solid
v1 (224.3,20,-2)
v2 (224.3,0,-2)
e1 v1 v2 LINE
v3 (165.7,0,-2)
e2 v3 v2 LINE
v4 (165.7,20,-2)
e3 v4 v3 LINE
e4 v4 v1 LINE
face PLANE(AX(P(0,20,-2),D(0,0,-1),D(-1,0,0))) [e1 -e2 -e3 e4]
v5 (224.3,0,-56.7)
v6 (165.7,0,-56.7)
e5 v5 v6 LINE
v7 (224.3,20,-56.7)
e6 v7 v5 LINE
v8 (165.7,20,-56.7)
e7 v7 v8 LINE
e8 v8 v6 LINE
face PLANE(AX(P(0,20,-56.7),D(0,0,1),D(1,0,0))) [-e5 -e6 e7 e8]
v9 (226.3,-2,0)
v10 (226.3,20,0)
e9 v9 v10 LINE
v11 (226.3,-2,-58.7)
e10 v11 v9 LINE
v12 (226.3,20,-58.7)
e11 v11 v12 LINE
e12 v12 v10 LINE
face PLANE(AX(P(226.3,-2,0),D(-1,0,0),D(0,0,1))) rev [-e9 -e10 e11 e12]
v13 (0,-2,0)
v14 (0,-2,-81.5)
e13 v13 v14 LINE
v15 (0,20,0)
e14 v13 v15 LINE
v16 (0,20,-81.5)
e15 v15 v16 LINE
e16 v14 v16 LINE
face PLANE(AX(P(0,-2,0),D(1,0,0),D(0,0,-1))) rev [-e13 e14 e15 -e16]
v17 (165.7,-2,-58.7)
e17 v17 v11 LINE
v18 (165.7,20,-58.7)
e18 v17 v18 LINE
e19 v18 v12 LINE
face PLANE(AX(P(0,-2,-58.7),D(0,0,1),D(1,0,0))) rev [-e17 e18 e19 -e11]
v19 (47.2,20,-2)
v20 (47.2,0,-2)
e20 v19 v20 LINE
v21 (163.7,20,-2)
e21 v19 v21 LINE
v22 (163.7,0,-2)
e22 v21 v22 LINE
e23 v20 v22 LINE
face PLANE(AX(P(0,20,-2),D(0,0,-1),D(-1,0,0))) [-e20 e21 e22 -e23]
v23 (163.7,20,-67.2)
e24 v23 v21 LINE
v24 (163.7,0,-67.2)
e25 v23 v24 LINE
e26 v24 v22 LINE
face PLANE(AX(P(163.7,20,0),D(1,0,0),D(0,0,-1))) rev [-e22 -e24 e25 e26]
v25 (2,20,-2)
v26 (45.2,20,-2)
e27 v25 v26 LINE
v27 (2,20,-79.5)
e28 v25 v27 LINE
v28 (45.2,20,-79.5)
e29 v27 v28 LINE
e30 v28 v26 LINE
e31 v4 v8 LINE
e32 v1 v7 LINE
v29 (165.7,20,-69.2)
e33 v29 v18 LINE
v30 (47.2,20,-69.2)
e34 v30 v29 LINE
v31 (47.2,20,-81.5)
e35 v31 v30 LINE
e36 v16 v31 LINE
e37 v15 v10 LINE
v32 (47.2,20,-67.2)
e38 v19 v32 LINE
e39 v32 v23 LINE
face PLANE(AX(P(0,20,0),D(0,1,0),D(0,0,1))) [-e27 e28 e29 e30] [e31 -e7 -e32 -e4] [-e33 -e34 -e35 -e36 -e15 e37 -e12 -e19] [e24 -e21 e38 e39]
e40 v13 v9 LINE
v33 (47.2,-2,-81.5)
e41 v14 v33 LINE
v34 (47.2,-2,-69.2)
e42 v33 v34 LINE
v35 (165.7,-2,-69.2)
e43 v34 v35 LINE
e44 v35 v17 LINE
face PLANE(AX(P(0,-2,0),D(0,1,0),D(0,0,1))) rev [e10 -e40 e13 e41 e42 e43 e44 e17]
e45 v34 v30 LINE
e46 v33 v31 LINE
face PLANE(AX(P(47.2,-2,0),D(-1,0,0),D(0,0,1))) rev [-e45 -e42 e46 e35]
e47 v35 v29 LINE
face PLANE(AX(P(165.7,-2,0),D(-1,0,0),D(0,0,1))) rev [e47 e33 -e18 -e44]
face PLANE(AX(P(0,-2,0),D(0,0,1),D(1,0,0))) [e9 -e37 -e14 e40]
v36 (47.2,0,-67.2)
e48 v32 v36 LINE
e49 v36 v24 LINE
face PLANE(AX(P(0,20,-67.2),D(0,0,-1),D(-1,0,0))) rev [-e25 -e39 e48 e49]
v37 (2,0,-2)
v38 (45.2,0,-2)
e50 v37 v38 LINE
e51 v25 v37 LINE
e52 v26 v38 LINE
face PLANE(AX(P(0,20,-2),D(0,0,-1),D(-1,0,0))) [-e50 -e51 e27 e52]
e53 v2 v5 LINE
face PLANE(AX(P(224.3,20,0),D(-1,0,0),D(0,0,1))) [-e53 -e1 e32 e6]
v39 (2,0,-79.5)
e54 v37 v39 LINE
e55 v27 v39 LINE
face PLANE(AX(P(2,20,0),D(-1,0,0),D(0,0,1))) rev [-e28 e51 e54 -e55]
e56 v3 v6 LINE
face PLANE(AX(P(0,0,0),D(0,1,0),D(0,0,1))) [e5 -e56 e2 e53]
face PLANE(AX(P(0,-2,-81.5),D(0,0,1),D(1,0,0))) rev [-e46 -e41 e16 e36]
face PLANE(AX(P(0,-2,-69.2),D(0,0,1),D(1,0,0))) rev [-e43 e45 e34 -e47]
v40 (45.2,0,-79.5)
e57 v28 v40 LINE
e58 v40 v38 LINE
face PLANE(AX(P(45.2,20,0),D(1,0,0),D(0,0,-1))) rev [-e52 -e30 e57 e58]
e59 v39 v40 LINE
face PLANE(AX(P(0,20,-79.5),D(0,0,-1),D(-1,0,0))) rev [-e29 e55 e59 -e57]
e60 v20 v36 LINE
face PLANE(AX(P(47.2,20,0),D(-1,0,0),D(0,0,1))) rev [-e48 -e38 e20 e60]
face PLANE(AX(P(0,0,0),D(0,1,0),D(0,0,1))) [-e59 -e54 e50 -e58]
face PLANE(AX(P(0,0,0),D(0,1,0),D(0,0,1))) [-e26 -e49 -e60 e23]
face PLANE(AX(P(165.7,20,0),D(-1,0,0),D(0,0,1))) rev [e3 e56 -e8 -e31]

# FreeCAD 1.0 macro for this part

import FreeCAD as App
import Part
import Sketcher

V = App.Vector

doc = App.newDocument("Part")
params = doc.addObject("Spreadsheet::Sheet", "Params")
for row, (alias, value) in enumerate([
    ("sketch1_width", "226.3 mm"),
    ("sketch1_width2", "60.6 mm"),
    ("sketch1_width3", "118.5 mm"),
    ("sketch1_height", "58.7 mm"),
    ("sketch1_height2", "10.5 mm"),
    ("pad1_length", "2 mm"),
    ("sketch2_width", "226.3 mm"),
    ("sketch2_width2", "60.6 mm"),
    ("sketch2_width3", "118.5 mm"),
    ("sketch2_width4", "116.5 mm"),
    ("sketch2_width5", "58.6 mm"),
    ("pad2_length", "20 mm"),
], start=1):
    params.set(f"A{row}", alias)
    params.set(f"B{row}", "=" + value)
    params.setAlias(f"B{row}", alias)

body = doc.addObject("PartDesign::Body", "Body")

sketch1 = body.newObject("Sketcher::SketchObject", "Sketch")
sketch1.AttachmentSupport = (doc.getObject("XZ_Plane"), [""])
sketch1.MapMode = "FlatFace"
sketch1.addGeometry([
    Part.LineSegment(V(0, 0, 0), V(226.3, 0, 0)),
    Part.LineSegment(V(226.3, 0, 0), V(226.3, -58.7, 0)),
    Part.LineSegment(V(226.3, -58.7, 0), V(165.7, -58.7, 0)),
    Part.LineSegment(V(165.7, -58.7, 0), V(165.7, -69.2, 0)),
    Part.LineSegment(V(165.7, -69.2, 0), V(47.2, -69.2, 0)),
    Part.LineSegment(V(47.2, -69.2, 0), V(47.2, -81.5, 0)),
    Part.LineSegment(V(47.2, -81.5, 0), V(0, -81.5, 0)),
    Part.LineSegment(V(0, -81.5, 0), V(0, 0, 0)),
], False)
sketch1.addConstraint([
    Sketcher.Constraint("Coincident", 0, 2, 1, 1),
    Sketcher.Constraint("Coincident", 1, 2, 2, 1),
    Sketcher.Constraint("Coincident", 2, 2, 3, 1),
    Sketcher.Constraint("Coincident", 3, 2, 4, 1),
    Sketcher.Constraint("Coincident", 4, 2, 5, 1),
    Sketcher.Constraint("Coincident", 5, 2, 6, 1),
    Sketcher.Constraint("Coincident", 6, 2, 7, 1),
    Sketcher.Constraint("Coincident", 7, 2, 0, 1),
    Sketcher.Constraint("Horizontal", 0),
    Sketcher.Constraint("Vertical", 1),
    Sketcher.Constraint("Horizontal", 2),
    Sketcher.Constraint("Vertical", 3),
    Sketcher.Constraint("Horizontal", 4),
    Sketcher.Constraint("Vertical", 5),
    Sketcher.Constraint("Horizontal", 6),
    Sketcher.Constraint("Vertical", 7),
    Sketcher.Constraint("Coincident", 7, 2, -1, 1),
    Sketcher.Constraint("DistanceX", 0, 1, 0, 2, 226.3),
    Sketcher.Constraint("DistanceX", 2, 2, 2, 1, 60.6),
    Sketcher.Constraint("DistanceX", 4, 2, 4, 1, 118.5),
    Sketcher.Constraint("DistanceY", 1, 2, 1, 1, 58.7),
    Sketcher.Constraint("DistanceY", 3, 2, 3, 1, 10.5),
    Sketcher.Constraint("DistanceY", 5, 2, 5, 1, 12.3),
])
sketch1.setExpression("Constraints[17]", "Params.sketch1_width")
sketch1.setExpression("Constraints[18]", "Params.sketch1_width2")
sketch1.setExpression("Constraints[19]", "Params.sketch1_width3")
sketch1.setExpression("Constraints[20]", "Params.sketch1_height")
sketch1.setExpression("Constraints[21]", "Params.sketch1_height2")
pad1 = body.newObject("PartDesign::Pad", "Pad")
pad1.Profile = sketch1
pad1.setExpression("Length", "Params.pad1_length")

sketch2 = body.newObject("Sketcher::SketchObject", "Sketch001")
sketch2.AttachmentSupport = (doc.getObject("XZ_Plane"), [""])
sketch2.MapMode = "FlatFace"
sketch2.addGeometry([
    Part.LineSegment(V(0, 0, 0), V(226.3, 0, 0)),
    Part.LineSegment(V(226.3, 0, 0), V(226.3, -58.7, 0)),
    Part.LineSegment(V(226.3, -58.7, 0), V(165.7, -58.7, 0)),
    Part.LineSegment(V(165.7, -58.7, 0), V(165.7, -69.2, 0)),
    Part.LineSegment(V(165.7, -69.2, 0), V(47.2, -69.2, 0)),
    Part.LineSegment(V(47.2, -69.2, 0), V(47.2, -81.5, 0)),
    Part.LineSegment(V(47.2, -81.5, 0), V(0, -81.5, 0)),
    Part.LineSegment(V(0, -81.5, 0), V(0, 0, 0)),
    Part.LineSegment(V(163.7, -67.2, 0), V(163.7, -2, 0)),
    Part.LineSegment(V(163.7, -2, 0), V(47.2, -2, 0)),
    Part.LineSegment(V(47.2, -2, 0), V(47.2, -67.2, 0)),
    Part.LineSegment(V(47.2, -67.2, 0), V(163.7, -67.2, 0)),
    Part.LineSegment(V(224.3, -2, 0), V(165.7, -2, 0)),
    Part.LineSegment(V(165.7, -2, 0), V(165.7, -56.7, 0)),
    Part.LineSegment(V(165.7, -56.7, 0), V(224.3, -56.7, 0)),
    Part.LineSegment(V(224.3, -56.7, 0), V(224.3, -2, 0)),
    Part.LineSegment(V(45.2, -2, 0), V(2, -2, 0)),
    Part.LineSegment(V(2, -2, 0), V(2, -79.5, 0)),
    Part.LineSegment(V(2, -79.5, 0), V(45.2, -79.5, 0)),
    Part.LineSegment(V(45.2, -79.5, 0), V(45.2, -2, 0)),
], False)
sketch2.addConstraint([
    Sketcher.Constraint("Coincident", 0, 2, 1, 1),
    Sketcher.Constraint("Coincident", 1, 2, 2, 1),
    Sketcher.Constraint("Coincident", 2, 2, 3, 1),
    Sketcher.Constraint("Coincident", 3, 2, 4, 1),
    Sketcher.Constraint("Coincident", 4, 2, 5, 1),
    Sketcher.Constraint("Coincident", 5, 2, 6, 1),
    Sketcher.Constraint("Coincident", 6, 2, 7, 1),
    Sketcher.Constraint("Coincident", 7, 2, 0, 1),
    Sketcher.Constraint("Coincident", 8, 2, 9, 1),
    Sketcher.Constraint("Coincident", 9, 2, 10, 1),
    Sketcher.Constraint("Coincident", 10, 2, 11, 1),
    Sketcher.Constraint("Coincident", 11, 2, 8, 1),
    Sketcher.Constraint("Coincident", 12, 2, 13, 1),
    Sketcher.Constraint("Coincident", 13, 2, 14, 1),
    Sketcher.Constraint("Coincident", 14, 2, 15, 1),
    Sketcher.Constraint("Coincident", 15, 2, 12, 1),
    Sketcher.Constraint("Coincident", 16, 2, 17, 1),
    Sketcher.Constraint("Coincident", 17, 2, 18, 1),
    Sketcher.Constraint("Coincident", 18, 2, 19, 1),
    Sketcher.Constraint("Coincident", 19, 2, 16, 1),
    Sketcher.Constraint("Horizontal", 0),
    Sketcher.Constraint("Vertical", 1),
    Sketcher.Constraint("Horizontal", 2),
    Sketcher.Constraint("Vertical", 3),
    Sketcher.Constraint("Horizontal", 4),
    Sketcher.Constraint("Vertical", 5),
    Sketcher.Constraint("Horizontal", 6),
    Sketcher.Constraint("Vertical", 7),
    Sketcher.Constraint("Vertical", 8),
    Sketcher.Constraint("Horizontal", 9),
    Sketcher.Constraint("Vertical", 10),
    Sketcher.Constraint("Horizontal", 11),
    Sketcher.Constraint("Horizontal", 12),
    Sketcher.Constraint("Vertical", 13),
    Sketcher.Constraint("Horizontal", 14),
    Sketcher.Constraint("Vertical", 15),
    Sketcher.Constraint("Horizontal", 16),
    Sketcher.Constraint("Vertical", 17),
    Sketcher.Constraint("Horizontal", 18),
    Sketcher.Constraint("Vertical", 19),
    Sketcher.Constraint("Coincident", 7, 2, -1, 1),
    Sketcher.Constraint("Horizontal", 9, 2, 12, 2),
    Sketcher.Constraint("Horizontal", 15, 2, 16, 2),
    Sketcher.Constraint("Vertical", 5, 2, 9, 2),
    Sketcher.Constraint("Vertical", 3, 2, 12, 2),
    Sketcher.Constraint("DistanceX", 0, 1, 0, 2, 226.3),
    Sketcher.Constraint("DistanceX", 2, 2, 2, 1, 60.6),
    Sketcher.Constraint("DistanceX", 4, 2, 4, 1, 118.5),
    Sketcher.Constraint("DistanceX", 9, 2, 9, 1, 116.5),
    Sketcher.Constraint("DistanceX", 12, 2, 12, 1, 58.6),
    Sketcher.Constraint("DistanceX", 16, 2, 16, 1, 43.2),
    Sketcher.Constraint("DistanceY", 1, 2, 1, 1, 58.7),
    Sketcher.Constraint("DistanceY", 3, 2, 3, 1, 10.5),
    Sketcher.Constraint("DistanceY", 5, 2, 5, 1, 12.3),
    Sketcher.Constraint("DistanceY", 8, 1, 8, 2, 65.2),
    Sketcher.Constraint("DistanceY", 13, 2, 13, 1, 54.7),
    Sketcher.Constraint("DistanceY", 17, 2, 17, 1, 77.5),
    Sketcher.Constraint("DistanceY", 8, 2, -1, 1, 2.0),
    Sketcher.Constraint("DistanceX", -1, 1, 16, 2, 2.0),
])
sketch2.setExpression("Constraints[45]", "Params.sketch2_width")
sketch2.setExpression("Constraints[46]", "Params.sketch2_width2")
sketch2.setExpression("Constraints[47]", "Params.sketch2_width3")
sketch2.setExpression("Constraints[48]", "Params.sketch2_width4")
sketch2.setExpression("Constraints[49]", "Params.sketch2_width5")
pad2 = body.newObject("PartDesign::Pad", "Pad001")
pad2.Profile = sketch2
pad2.setExpression("Length", "Params.pad2_length")
pad2.Reversed = True

doc.recompute()
